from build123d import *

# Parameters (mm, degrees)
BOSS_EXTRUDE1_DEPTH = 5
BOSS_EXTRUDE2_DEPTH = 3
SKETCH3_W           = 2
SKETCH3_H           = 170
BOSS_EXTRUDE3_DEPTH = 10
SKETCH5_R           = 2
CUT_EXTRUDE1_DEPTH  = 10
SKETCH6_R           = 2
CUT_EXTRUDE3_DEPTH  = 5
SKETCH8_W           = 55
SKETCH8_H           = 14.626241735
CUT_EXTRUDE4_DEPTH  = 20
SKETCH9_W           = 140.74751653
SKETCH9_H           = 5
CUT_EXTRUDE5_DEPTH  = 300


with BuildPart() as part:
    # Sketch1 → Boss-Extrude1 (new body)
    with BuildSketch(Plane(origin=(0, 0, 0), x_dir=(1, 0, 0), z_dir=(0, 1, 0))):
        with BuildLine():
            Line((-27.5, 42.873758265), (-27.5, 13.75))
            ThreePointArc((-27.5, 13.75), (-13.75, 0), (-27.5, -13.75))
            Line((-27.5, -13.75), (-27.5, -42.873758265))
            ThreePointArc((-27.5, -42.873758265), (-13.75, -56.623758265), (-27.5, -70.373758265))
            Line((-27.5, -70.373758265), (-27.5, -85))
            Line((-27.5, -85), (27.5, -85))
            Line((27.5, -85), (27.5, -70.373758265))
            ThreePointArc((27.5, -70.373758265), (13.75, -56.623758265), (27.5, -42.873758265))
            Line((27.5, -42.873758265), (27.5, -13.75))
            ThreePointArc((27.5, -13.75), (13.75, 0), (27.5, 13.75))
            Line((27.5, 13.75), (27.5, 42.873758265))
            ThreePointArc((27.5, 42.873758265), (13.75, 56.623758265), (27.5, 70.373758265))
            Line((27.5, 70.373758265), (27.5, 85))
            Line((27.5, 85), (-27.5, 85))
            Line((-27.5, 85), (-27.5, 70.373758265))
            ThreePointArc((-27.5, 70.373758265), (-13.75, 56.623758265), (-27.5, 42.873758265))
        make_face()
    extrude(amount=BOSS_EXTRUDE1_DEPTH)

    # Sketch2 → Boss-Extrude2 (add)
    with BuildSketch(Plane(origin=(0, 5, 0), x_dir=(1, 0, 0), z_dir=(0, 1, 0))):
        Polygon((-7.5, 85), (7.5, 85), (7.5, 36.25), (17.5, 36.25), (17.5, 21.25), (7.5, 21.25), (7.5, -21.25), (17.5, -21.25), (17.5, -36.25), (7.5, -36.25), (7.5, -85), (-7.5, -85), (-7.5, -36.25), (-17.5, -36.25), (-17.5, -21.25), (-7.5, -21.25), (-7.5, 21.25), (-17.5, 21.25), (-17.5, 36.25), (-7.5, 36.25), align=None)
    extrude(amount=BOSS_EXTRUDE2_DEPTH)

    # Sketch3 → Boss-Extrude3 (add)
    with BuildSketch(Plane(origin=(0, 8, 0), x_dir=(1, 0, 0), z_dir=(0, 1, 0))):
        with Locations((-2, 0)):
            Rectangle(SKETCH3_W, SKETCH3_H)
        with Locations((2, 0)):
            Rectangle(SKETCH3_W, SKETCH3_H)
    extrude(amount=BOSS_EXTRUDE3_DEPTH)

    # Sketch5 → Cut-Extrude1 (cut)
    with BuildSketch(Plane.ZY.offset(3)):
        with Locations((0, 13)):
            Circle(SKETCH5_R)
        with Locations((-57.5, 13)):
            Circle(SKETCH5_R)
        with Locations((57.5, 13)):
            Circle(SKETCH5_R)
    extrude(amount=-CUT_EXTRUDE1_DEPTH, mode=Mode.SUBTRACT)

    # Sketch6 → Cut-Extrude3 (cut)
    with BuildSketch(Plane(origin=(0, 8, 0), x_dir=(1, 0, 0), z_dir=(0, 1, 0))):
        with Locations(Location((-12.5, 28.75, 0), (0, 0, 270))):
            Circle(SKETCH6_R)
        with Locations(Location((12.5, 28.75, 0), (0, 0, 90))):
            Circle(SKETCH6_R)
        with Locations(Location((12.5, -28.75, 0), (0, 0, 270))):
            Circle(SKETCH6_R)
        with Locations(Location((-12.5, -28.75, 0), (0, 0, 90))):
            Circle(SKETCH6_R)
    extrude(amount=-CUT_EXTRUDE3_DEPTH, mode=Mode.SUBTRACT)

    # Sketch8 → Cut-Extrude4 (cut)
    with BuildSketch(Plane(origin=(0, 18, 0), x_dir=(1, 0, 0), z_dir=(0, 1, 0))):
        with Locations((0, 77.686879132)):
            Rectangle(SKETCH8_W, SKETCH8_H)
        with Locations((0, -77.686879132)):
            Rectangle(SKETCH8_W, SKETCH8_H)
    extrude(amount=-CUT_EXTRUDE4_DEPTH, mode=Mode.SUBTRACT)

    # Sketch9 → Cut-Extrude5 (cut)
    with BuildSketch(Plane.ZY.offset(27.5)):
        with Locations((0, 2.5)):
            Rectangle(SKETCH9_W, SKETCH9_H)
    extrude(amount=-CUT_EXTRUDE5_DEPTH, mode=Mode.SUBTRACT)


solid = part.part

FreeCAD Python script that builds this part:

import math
import FreeCAD as App
import Part
import Sketcher

V = App.Vector

doc = App.newDocument("Part")
body = doc.addObject("PartDesign::Body", "Body")

# Sketch on XZ plane
sketch1 = body.newObject("Sketcher::SketchObject", "Sketch")
sketch1.AttachmentSupport = (doc.getObject("XZ_Plane"), [""])
sketch1.MapMode = "FlatFace"
sketch1.addGeometry(Part.LineSegment(V(-28, -43, 0), V(-28, -14, 0)), False)
sketch1.addGeometry(Part.ArcOfCircle(Part.Circle(V(-28, 0, 0), V(0, 0, 1), 14), math.radians(-90), math.radians(90)), False)
sketch1.addGeometry(Part.LineSegment(V(-28, 14, 0), V(-28, 43, 0)), False)
sketch1.addGeometry(Part.ArcOfCircle(Part.Circle(V(-28, 57, 0), V(0, 0, 1), 14), math.radians(-90), math.radians(90)), False)
sketch1.addGeometry(Part.LineSegment(V(-28, 70, 0), V(-28, 85, 0)), False)
sketch1.addGeometry(Part.LineSegment(V(-28, 85, 0), V(28, 85, 0)), False)
sketch1.addGeometry(Part.LineSegment(V(28, 85, 0), V(28, 70, 0)), False)
sketch1.addGeometry(Part.ArcOfCircle(Part.Circle(V(28, 57, 0), V(0, 0, 1), 14), math.radians(90), math.radians(270)), False)
sketch1.addGeometry(Part.LineSegment(V(28, 43, 0), V(28, 14, 0)), False)
sketch1.addGeometry(Part.ArcOfCircle(Part.Circle(V(28, 0, 0), V(0, 0, 1), 14), math.radians(90), math.radians(270)), False)
sketch1.addGeometry(Part.LineSegment(V(28, -14, 0), V(28, -43, 0)), False)
sketch1.addGeometry(Part.ArcOfCircle(Part.Circle(V(28, -57, 0), V(0, 0, 1), 14), math.radians(90), math.radians(270)), False)
sketch1.addGeometry(Part.LineSegment(V(28, -70, 0), V(28, -85, 0)), False)
sketch1.addGeometry(Part.LineSegment(V(28, -85, 0), V(-28, -85, 0)), False)
sketch1.addGeometry(Part.LineSegment(V(-28, -85, 0), V(-28, -70, 0)), False)
sketch1.addGeometry(Part.ArcOfCircle(Part.Circle(V(-28, -57, 0), V(0, 0, 1), 14), math.radians(-90), math.radians(90)), False)
sketch1.addConstraint(Sketcher.Constraint("Coincident", 0, 2, 1, 1))
sketch1.addConstraint(Sketcher.Constraint("Coincident", 1, 2, 2, 1))
sketch1.addConstraint(Sketcher.Constraint("Coincident", 2, 2, 3, 1))
sketch1.addConstraint(Sketcher.Constraint("Coincident", 3, 2, 4, 1))
sketch1.addConstraint(Sketcher.Constraint("Coincident", 4, 2, 5, 1))
sketch1.addConstraint(Sketcher.Constraint("Coincident", 5, 2, 6, 1))
sketch1.addConstraint(Sketcher.Constraint("Coincident", 6, 2, 7, 1))
sketch1.addConstraint(Sketcher.Constraint("Coincident", 7, 2, 8, 1))
sketch1.addConstraint(Sketcher.Constraint("Coincident", 8, 2, 9, 1))
sketch1.addConstraint(Sketcher.Constraint("Coincident", 9, 2, 10, 1))
sketch1.addConstraint(Sketcher.Constraint("Coincident", 10, 2, 11, 1))
sketch1.addConstraint(Sketcher.Constraint("Coincident", 11, 2, 12, 1))
sketch1.addConstraint(Sketcher.Constraint("Coincident", 12, 2, 13, 1))
sketch1.addConstraint(Sketcher.Constraint("Coincident", 13, 2, 14, 1))
sketch1.addConstraint(Sketcher.Constraint("Coincident", 14, 2, 15, 1))
sketch1.addConstraint(Sketcher.Constraint("Coincident", 15, 2, 0, 1))
sketch1.addConstraint(Sketcher.Constraint("Vertical", 0))
sketch1.addConstraint(Sketcher.Constraint("Vertical", 2))
sketch1.addConstraint(Sketcher.Constraint("Vertical", 4))
sketch1.addConstraint(Sketcher.Constraint("Horizontal", 5))
sketch1.addConstraint(Sketcher.Constraint("Vertical", 6))
sketch1.addConstraint(Sketcher.Constraint("Vertical", 8))
sketch1.addConstraint(Sketcher.Constraint("Vertical", 10))
sketch1.addConstraint(Sketcher.Constraint("Vertical", 12))
sketch1.addConstraint(Sketcher.Constraint("Horizontal", 13))
sketch1.addConstraint(Sketcher.Constraint("Vertical", 14))
sketch1.addConstraint(Sketcher.Constraint("Equal", 1, 3))
sketch1.addConstraint(Sketcher.Constraint("Equal", 3, 7))
sketch1.addConstraint(Sketcher.Constraint("Equal", 7, 9))
sketch1.addConstraint(Sketcher.Constraint("Equal", 9, 11))
sketch1.addConstraint(Sketcher.Constraint("Equal", 11, 15))
sketch1.addConstraint(Sketcher.Constraint("Symmetric", 1, 3, 9, 3, -1, 1))
sketch1.addConstraint(Sketcher.Constraint("Symmetric", 3, 3, 11, 3, -1, 1))
sketch1.addConstraint(Sketcher.Constraint("Symmetric", 7, 3, 15, 3, -1, 1))
sketch1.addConstraint(Sketcher.Constraint("Symmetric", 4, 2, 12, 2, -1, 1))
sketch1.addConstraint(Sketcher.Constraint("Symmetric", 3, 3, 7, 3, -2))
sketch1.addConstraint(Sketcher.Constraint("Symmetric", 1, 2, 8, 2, -2))
sketch1.addConstraint(Sketcher.Constraint("Vertical", 1, 3, 3, 3))
sketch1.addConstraint(Sketcher.Constraint("Vertical", 15, 3, 0, 2))
sketch1.addConstraint(Sketcher.Constraint("Vertical", 0, 2, 1, 2))
sketch1.addConstraint(Sketcher.Constraint("Vertical", 2, 2, 3, 2))
sketch1.addConstraint(Sketcher.Constraint("Vertical", 11, 3, 5, 2))
sketch1.addConstraint(Sketcher.Constraint("Vertical", 8, 2, 9, 2))
sketch1.addConstraint(Sketcher.Constraint("Vertical", 4, 2, 13, 2))
sketch1.addConstraint(Sketcher.Constraint("DistanceX", 5, 1, 5, 2, 55.0))
sketch1.addConstraint(Sketcher.Constraint("Radius", 1, 13.75))
sketch1.addConstraint(Sketcher.Constraint("DistanceY", -1, 1, 4, 2, 85.0))
sketch1.addConstraint(Sketcher.Constraint("DistanceY", 0, 1, 0, 2, 29.123758))
pad1 = body.newObject("PartDesign::Pad", "Pad")
pad1.Profile = sketch1
pad1.Length = 5
pad1.Reversed = True

# Sketch on XZ plane
sketch2 = body.newObject("Sketcher::SketchObject", "Sketch001")
sketch2.AttachmentSupport = (doc.getObject("XZ_Plane"), [""])
sketch2.MapMode = "FlatFace"
sketch2.AttachmentOffset = App.Placement(V(0, 0, -5), App.Rotation())
sketch2.addGeometry(Part.LineSegment(V(8, -85, 0), V(-8, -85, 0)), False)
sketch2.addGeometry(Part.LineSegment(V(-8, -85, 0), V(-8, -36, 0)), False)
sketch2.addGeometry(Part.LineSegment(V(-8, -36, 0), V(-18, -36, 0)), False)
sketch2.addGeometry(Part.LineSegment(V(-18, -36, 0), V(-18, -21, 0)), False)
sketch2.addGeometry(Part.LineSegment(V(-18, -21, 0), V(-8, -21, 0)), False)
sketch2.addGeometry(Part.LineSegment(V(-8, -21, 0), V(-8, 21, 0)), False)
sketch2.addGeometry(Part.LineSegment(V(-8, 21, 0), V(-18, 21, 0)), False)
sketch2.addGeometry(Part.LineSegment(V(-18, 21, 0), V(-18, 36, 0)), False)
sketch2.addGeometry(Part.LineSegment(V(-18, 36, 0), V(-8, 36, 0)), False)
sketch2.addGeometry(Part.LineSegment(V(-8, 36, 0), V(-8, 85, 0)), False)
sketch2.addGeometry(Part.LineSegment(V(-8, 85, 0), V(8, 85, 0)), False)
sketch2.addGeometry(Part.LineSegment(V(8, 85, 0), V(8, 36, 0)), False)
sketch2.addGeometry(Part.LineSegment(V(8, 36, 0), V(18, 36, 0)), False)
sketch2.addGeometry(Part.LineSegment(V(18, 36, 0), V(18, 21, 0)), False)
sketch2.addGeometry(Part.LineSegment(V(18, 21, 0), V(8, 21, 0)), False)
sketch2.addGeometry(Part.LineSegment(V(8, 21, 0), V(8, -21, 0)), False)
sketch2.addGeometry(Part.LineSegment(V(8, -21, 0), V(18, -21, 0)), False)
sketch2.addGeometry(Part.LineSegment(V(18, -21, 0), V(18, -36, 0)), False)
sketch2.addGeometry(Part.LineSegment(V(18, -36, 0), V(8, -36, 0)), False)
sketch2.addGeometry(Part.LineSegment(V(8, -36, 0), V(8, -85, 0)), False)
sketch2.addConstraint(Sketcher.Constraint("Coincident", 0, 2, 1, 1))
sketch2.addConstraint(Sketcher.Constraint("Coincident", 1, 2, 2, 1))
sketch2.addConstraint(Sketcher.Constraint("Coincident", 2, 2, 3, 1))
sketch2.addConstraint(Sketcher.Constraint("Coincident", 3, 2, 4, 1))
sketch2.addConstraint(Sketcher.Constraint("Coincident", 4, 2, 5, 1))
sketch2.addConstraint(Sketcher.Constraint("Coincident", 5, 2, 6, 1))
sketch2.addConstraint(Sketcher.Constraint("Coincident", 6, 2, 7, 1))
sketch2.addConstraint(Sketcher.Constraint("Coincident", 7, 2, 8, 1))
sketch2.addConstraint(Sketcher.Constraint("Coincident", 8, 2, 9, 1))
sketch2.addConstraint(Sketcher.Constraint("Coincident", 9, 2, 10, 1))
sketch2.addConstraint(Sketcher.Constraint("Coincident", 10, 2, 11, 1))
sketch2.addConstraint(Sketcher.Constraint("Coincident", 11, 2, 12, 1))
sketch2.addConstraint(Sketcher.Constraint("Coincident", 12, 2, 13, 1))
sketch2.addConstraint(Sketcher.Constraint("Coincident", 13, 2, 14, 1))
sketch2.addConstraint(Sketcher.Constraint("Coincident", 14, 2, 15, 1))
sketch2.addConstraint(Sketcher.Constraint("Coincident", 15, 2, 16, 1))
sketch2.addConstraint(Sketcher.Constraint("Coincident", 16, 2, 17, 1))
sketch2.addConstraint(Sketcher.Constraint("Coincident", 17, 2, 18, 1))
sketch2.addConstraint(Sketcher.Constraint("Coincident", 18, 2, 19, 1))
sketch2.addConstraint(Sketcher.Constraint("Coincident", 19, 2, 0, 1))
sketch2.addConstraint(Sketcher.Constraint("Horizontal", 0))
sketch2.addConstraint(Sketcher.Constraint("Vertical", 1))
sketch2.addConstraint(Sketcher.Constraint("Horizontal", 2))
sketch2.addConstraint(Sketcher.Constraint("Vertical", 3))
sketch2.addConstraint(Sketcher.Constraint("Horizontal", 4))
sketch2.addConstraint(Sketcher.Constraint("Vertical", 5))
sketch2.addConstraint(Sketcher.Constraint("Horizontal", 6))
sketch2.addConstraint(Sketcher.Constraint("Vertical", 7))
sketch2.addConstraint(Sketcher.Constraint("Horizontal", 8))
sketch2.addConstraint(Sketcher.Constraint("Vertical", 9))
sketch2.addConstraint(Sketcher.Constraint("Horizontal", 10))
sketch2.addConstraint(Sketcher.Constraint("Vertical", 11))
sketch2.addConstraint(Sketcher.Constraint("Horizontal", 12))
sketch2.addConstraint(Sketcher.Constraint("Vertical", 13))
sketch2.addConstraint(Sketcher.Constraint("Horizontal", 14))
sketch2.addConstraint(Sketcher.Constraint("Vertical", 15))
sketch2.addConstraint(Sketcher.Constraint("Horizontal", 16))
sketch2.addConstraint(Sketcher.Constraint("Vertical", 17))
sketch2.addConstraint(Sketcher.Constraint("Horizontal", 18))
sketch2.addConstraint(Sketcher.Constraint("Vertical", 19))
sketch2.addConstraint(Sketcher.Constraint("Symmetric", 0, 2, 10, 2, -1, 1))
sketch2.addConstraint(Sketcher.Constraint("Symmetric", 2, 2, 12, 2, -1, 1))
sketch2.addConstraint(Sketcher.Constraint("Symmetric", 4, 2, 14, 2, -1, 1))
sketch2.addConstraint(Sketcher.Constraint("Symmetric", 6, 2, 16, 2, -1, 1))
sketch2.addConstraint(Sketcher.Constraint("Symmetric", 8, 2, 18, 2, -1, 1))
sketch2.addConstraint(Sketcher.Constraint("Symmetric", 8, 2, 11, 2, -2))
sketch2.addConstraint(Sketcher.Constraint("Symmetric", 6, 2, 13, 2, -2))
sketch2.addConstraint(Sketcher.Constraint("Vertical", 1, 2, 4, 2))
sketch2.addConstraint(Sketcher.Constraint("Equal", 10, 3))
sketch2.addConstraint(Sketcher.Constraint("DistanceX", 0, 2, 0, 1, 15.0))
sketch2.addConstraint(Sketcher.Constraint("DistanceX", 2, 2, 2, 1, 10.0))
sketch2.addConstraint(Sketcher.Constraint("DistanceY", 5, 1, 5, 2, 42.5))
sketch2.addConstraint(Sketcher.Constraint("DistanceY", 0, 2, -1, 1, 85.0))
pad2 = body.newObject("PartDesign::Pad", "Pad001")
pad2.Profile = sketch2
pad2.Length = 3
pad2.Reversed = True

# Sketch on XZ plane
sketch3 = body.newObject("Sketcher::SketchObject", "Sketch002")
sketch3.AttachmentSupport = (doc.getObject("XZ_Plane"), [""])
sketch3.MapMode = "FlatFace"
sketch3.AttachmentOffset = App.Placement(V(0, 0, -8), App.Rotation())
sketch3.addGeometry(Part.LineSegment(V(-3, -85, 0), V(-3, 85, 0)), False)
sketch3.addGeometry(Part.LineSegment(V(-3, 85, 0), V(-1, 85, 0)), False)
sketch3.addGeometry(Part.LineSegment(V(-1, 85, 0), V(-1, -85, 0)), False)
sketch3.addGeometry(Part.LineSegment(V(-1, -85, 0), V(-3, -85, 0)), False)
sketch3.addGeometry(Part.LineSegment(V(1, -85, 0), V(1, 85, 0)), False)
sketch3.addGeometry(Part.LineSegment(V(1, 85, 0), V(3, 85, 0)), False)
sketch3.addGeometry(Part.LineSegment(V(3, 85, 0), V(3, -85, 0)), False)
sketch3.addGeometry(Part.LineSegment(V(3, -85, 0), V(1, -85, 0)), False)
sketch3.addConstraint(Sketcher.Constraint("Coincident", 0, 2, 1, 1))
sketch3.addConstraint(Sketcher.Constraint("Coincident", 1, 2, 2, 1))
sketch3.addConstraint(Sketcher.Constraint("Coincident", 2, 2, 3, 1))
sketch3.addConstraint(Sketcher.Constraint("Coincident", 3, 2, 0, 1))
sketch3.addConstraint(Sketcher.Constraint("Coincident", 4, 2, 5, 1))
sketch3.addConstraint(Sketcher.Constraint("Coincident", 5, 2, 6, 1))
sketch3.addConstraint(Sketcher.Constraint("Coincident", 6, 2, 7, 1))
sketch3.addConstraint(Sketcher.Constraint("Coincident", 7, 2, 4, 1))
sketch3.addConstraint(Sketcher.Constraint("Vertical", 0))
sketch3.addConstraint(Sketcher.Constraint("Horizontal", 1))
sketch3.addConstraint(Sketcher.Constraint("Vertical", 2))
sketch3.addConstraint(Sketcher.Constraint("Horizontal", 3))
sketch3.addConstraint(Sketcher.Constraint("Vertical", 4))
sketch3.addConstraint(Sketcher.Constraint("Horizontal", 5))
sketch3.addConstraint(Sketcher.Constraint("Vertical", 6))
sketch3.addConstraint(Sketcher.Constraint("Horizontal", 7))
sketch3.addConstraint(Sketcher.Constraint("Symmetric", 2, 2, 4, 2, -1, 1))
sketch3.addConstraint(Sketcher.Constraint("Symmetric", 0, 2, 6, 2, -1, 1))
sketch3.addConstraint(Sketcher.Constraint("Horizontal", 1, 2, 4, 2))
sketch3.addConstraint(Sketcher.Constraint("DistanceX", 1, 1, 1, 2, 2.0))
sketch3.addConstraint(Sketcher.Constraint("DistanceY", 0, 1, 0, 2, 170.0))
sketch3.addConstraint(Sketcher.Constraint("DistanceX", 0, 2, -1, 1, 3.0))
pad3 = body.newObject("PartDesign::Pad", "Pad002")
pad3.Profile = sketch3
pad3.Length = 10
pad3.Reversed = True

# Sketch on YZ plane
sketch4 = body.newObject("Sketcher::SketchObject", "Sketch003")
sketch4.AttachmentSupport = (doc.getObject("YZ_Plane"), [""])
sketch4.MapMode = "FlatFace"
sketch4.AttachmentOffset = App.Placement(V(0, 0, -3), App.Rotation())
sketch4.addGeometry(Part.Circle(V(13, 0, 0), V(0, 0, 1), 2), False)
sketch4.addGeometry(Part.Circle(V(13, -57.5, 0), V(0, 0, 1), 2), False)
sketch4.addGeometry(Part.Circle(V(13, 57.5, 0), V(0, 0, 1), 2), False)
sketch4.addConstraint(Sketcher.Constraint("Equal", 0, 1))
sketch4.addConstraint(Sketcher.Constraint("Equal", 1, 2))
sketch4.addConstraint(Sketcher.Constraint("Symmetric", 1, 3, 2, 3, -1))
sketch4.addConstraint(Sketcher.Constraint("PointOnObject", 0, 3, -1))
sketch4.addConstraint(Sketcher.Constraint("Vertical", 0, 3, 1, 3))
sketch4.addConstraint(Sketcher.Constraint("Diameter", 0, 4.0))
sketch4.addConstraint(Sketcher.Constraint("DistanceX", -1, 1, 0, 3, 13.0))
sketch4.addConstraint(Sketcher.Constraint("DistanceY", 1, 3, 2, 3, 115.0))
pocket1 = body.newObject("PartDesign::Pocket", "Pocket")
pocket1.Profile = sketch4
pocket1.Length = 10
pocket1.Reversed = True

# Sketch on XZ plane
sketch5 = body.newObject("Sketcher::SketchObject", "Sketch004")
sketch5.AttachmentSupport = (doc.getObject("XZ_Plane"), [""])
sketch5.MapMode = "FlatFace"
sketch5.AttachmentOffset = App.Placement(V(0, 0, -8), App.Rotation())
sketch5.addGeometry(Part.Circle(V(-12.5, -28.8, 0), V(0, 0, 1), 2), False)
sketch5.addGeometry(Part.Circle(V(12.5, -28.8, 0), V(0, 0, 1), 2), False)
sketch5.addGeometry(Part.Circle(V(12.5, 28.8, 0), V(0, 0, 1), 2), False)
sketch5.addGeometry(Part.Circle(V(-12.5, 28.8, 0), V(0, 0, 1), 2), False)
sketch5.addConstraint(Sketcher.Constraint("Equal", 0, 1))
sketch5.addConstraint(Sketcher.Constraint("Equal", 1, 2))
sketch5.addConstraint(Sketcher.Constraint("Equal", 2, 3))
sketch5.addConstraint(Sketcher.Constraint("Symmetric", 0, 3, 2, 3, -1, 1))
sketch5.addConstraint(Sketcher.Constraint("Symmetric", 1, 3, 3, 3, -1, 1))
sketch5.addConstraint(Sketcher.Constraint("Symmetric", 0, 3, 1, 3, -2))
sketch5.addConstraint(Sketcher.Constraint("Diameter", 0, 4.0))
sketch5.addConstraint(Sketcher.Constraint("DistanceX", 0, 3, 1, 3, 25.0))
sketch5.addConstraint(Sketcher.Constraint("DistanceY", 1, 3, 2, 3, 57.5))
pocket2 = body.newObject("PartDesign::Pocket", "Pocket001")
pocket2.Profile = sketch5
pocket2.Length = 5
pocket2.Reversed = True

# Sketch on XZ plane
sketch6 = body.newObject("Sketcher::SketchObject", "Sketch005")
sketch6.AttachmentSupport = (doc.getObject("XZ_Plane"), [""])
sketch6.MapMode = "FlatFace"
sketch6.AttachmentOffset = App.Placement(V(0, 0, -18), App.Rotation())
sketch6.addGeometry(Part.LineSegment(V(-28, -85, 0), V(-28, -70, 0)), False)
sketch6.addGeometry(Part.LineSegment(V(-28, -70, 0), V(28, -70, 0)), False)
sketch6.addGeometry(Part.LineSegment(V(28, -70, 0), V(28, -85, 0)), False)
sketch6.addGeometry(Part.LineSegment(V(28, -85, 0), V(-28, -85, 0)), False)
sketch6.addGeometry(Part.LineSegment(V(-28, 70, 0), V(-28, 85, 0)), False)
sketch6.addGeometry(Part.LineSegment(V(-28, 85, 0), V(28, 85, 0)), False)
sketch6.addGeometry(Part.LineSegment(V(28, 85, 0), V(28, 70, 0)), False)
sketch6.addGeometry(Part.LineSegment(V(28, 70, 0), V(-28, 70, 0)), False)
sketch6.addConstraint(Sketcher.Constraint("Coincident", 0, 2, 1, 1))
sketch6.addConstraint(Sketcher.Constraint("Coincident", 1, 2, 2, 1))
sketch6.addConstraint(Sketcher.Constraint("Coincident", 2, 2, 3, 1))
sketch6.addConstraint(Sketcher.Constraint("Coincident", 3, 2, 0, 1))
sketch6.addConstraint(Sketcher.Constraint("Coincident", 4, 2, 5, 1))
sketch6.addConstraint(Sketcher.Constraint("Coincident", 5, 2, 6, 1))
sketch6.addConstraint(Sketcher.Constraint("Coincident", 6, 2, 7, 1))
sketch6.addConstraint(Sketcher.Constraint("Coincident", 7, 2, 4, 1))
sketch6.addConstraint(Sketcher.Constraint("Vertical", 0))
sketch6.addConstraint(Sketcher.Constraint("Horizontal", 1))
sketch6.addConstraint(Sketcher.Constraint("Vertical", 2))
sketch6.addConstraint(Sketcher.Constraint("Horizontal", 3))
sketch6.addConstraint(Sketcher.Constraint("Vertical", 4))
sketch6.addConstraint(Sketcher.Constraint("Horizontal", 5))
sketch6.addConstraint(Sketcher.Constraint("Vertical", 6))
sketch6.addConstraint(Sketcher.Constraint("Horizontal", 7))
sketch6.addConstraint(Sketcher.Constraint("Symmetric", 2, 2, 4, 2, -1, 1))
sketch6.addConstraint(Sketcher.Constraint("Symmetric", 0, 2, 6, 2, -1, 1))
sketch6.addConstraint(Sketcher.Constraint("Vertical", 3, 2, 4, 2))
sketch6.addConstraint(Sketcher.Constraint("DistanceX", 1, 1, 1, 2, 55.0))
sketch6.addConstraint(Sketcher.Constraint("DistanceY", 2, 2, -1, 1, 85.0))
sketch6.addConstraint(Sketcher.Constraint("DistanceY", 0, 1, 0, 2, 14.626242))
pocket3 = body.newObject("PartDesign::Pocket", "Pocket002")
pocket3.Profile = sketch6
pocket3.Length = 20
pocket3.Reversed = True

# Sketch on YZ plane
sketch7 = body.newObject("Sketcher::SketchObject", "Sketch006")
sketch7.AttachmentSupport = (doc.getObject("YZ_Plane"), [""])
sketch7.MapMode = "FlatFace"
sketch7.AttachmentOffset = App.Placement(V(0, 0, -27.5), App.Rotation())
sketch7.addGeometry(Part.LineSegment(V(5, -70, 0), V(0, -70, 0)), False)
sketch7.addGeometry(Part.LineSegment(V(0, -70, 0), V(0, 70, 0)), False)
sketch7.addGeometry(Part.LineSegment(V(0, 70, 0), V(5, 70, 0)), False)
sketch7.addGeometry(Part.LineSegment(V(5, 70, 0), V(5, -70, 0)), False)
sketch7.addConstraint(Sketcher.Constraint("Coincident", 0, 2, 1, 1))
sketch7.addConstraint(Sketcher.Constraint("Coincident", 1, 2, 2, 1))
sketch7.addConstraint(Sketcher.Constraint("Coincident", 2, 2, 3, 1))
sketch7.addConstraint(Sketcher.Constraint("Coincident", 3, 2, 0, 1))
sketch7.addConstraint(Sketcher.Constraint("Horizontal", 0))
sketch7.addConstraint(Sketcher.Constraint("Vertical", 1))
sketch7.addConstraint(Sketcher.Constraint("Horizontal", 2))
sketch7.addConstraint(Sketcher.Constraint("Vertical", 3))
sketch7.addConstraint(Sketcher.Constraint("Symmetric", 0, 2, 1, 2, -1, 1))
sketch7.addConstraint(Sketcher.Constraint("DistanceX", 0, 2, 0, 1, 5.0))
sketch7.addConstraint(Sketcher.Constraint("DistanceY", 1, 1, 1, 2, 140.747517))
pocket4 = body.newObject("PartDesign::Pocket", "Pocket003")
pocket4.Profile = sketch7
pocket4.Length = 300
pocket4.Reversed = True

doc.recompute()
